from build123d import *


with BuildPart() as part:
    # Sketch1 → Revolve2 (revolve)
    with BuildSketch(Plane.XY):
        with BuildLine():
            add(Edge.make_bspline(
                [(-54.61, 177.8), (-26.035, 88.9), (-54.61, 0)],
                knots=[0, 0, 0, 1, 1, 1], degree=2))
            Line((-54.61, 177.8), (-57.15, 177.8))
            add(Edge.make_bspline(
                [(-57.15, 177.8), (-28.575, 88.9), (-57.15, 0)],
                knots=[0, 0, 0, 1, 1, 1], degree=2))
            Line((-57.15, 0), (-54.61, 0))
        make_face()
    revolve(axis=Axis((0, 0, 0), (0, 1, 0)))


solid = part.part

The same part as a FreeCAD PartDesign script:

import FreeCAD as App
import Part
import Sketcher
from FreeCAD import Vector

doc = App.newDocument("Part")
body = doc.addObject("PartDesign::Body", "Body")

sketch1 = doc.addObject("Sketcher::SketchObject", "Sketch")
body.addObject(sketch1)
sketch1.AttachmentSupport = (doc.XY_Plane, [""])
sketch1.MapMode = "FlatFace"
sketch1.addGeometry(Part.BSplineCurve([Vector(-54.61, 177.8, 0), Vector(-26.035, 88.9, 0), Vector(-54.61, 0, 0)], [3, 3], [0, 1], False, 2, [1, 1, 1], False), False)
sketch1.addGeometry(Part.LineSegment(Vector(-54.61, 177.8, 0), Vector(-57.15, 177.8, 0)), False)
sketch1.addGeometry(Part.BSplineCurve([Vector(-57.15, 177.8, 0), Vector(-28.575, 88.9, 0), Vector(-57.15, 0, 0)], [3, 3], [0, 1], False, 2, [1, 1, 1], False), False)
sketch1.addGeometry(Part.LineSegment(Vector(-57.15, 0, 0), Vector(-54.61, 0, 0)), False)
sketch1.addConstraint(Sketcher.Constraint("Block", 0))
sketch1.addConstraint(Sketcher.Constraint("Block", 2))
sketch1.addConstraint(Sketcher.Constraint("Coincident", 0, 1, 1, 1))
sketch1.addConstraint(Sketcher.Constraint("Coincident", 1, 2, 2, 1))
sketch1.addConstraint(Sketcher.Constraint("Coincident", 2, 2, 3, 1))
sketch1.addConstraint(Sketcher.Constraint("Coincident", 3, 2, 0, 2))
revolution = doc.addObject("PartDesign::Revolution", "Revolution")
body.addObject(revolution)
revolution.Profile = sketch1
revolution.ReferenceAxis = (sketch1, ["V_Axis"])
revolution.Angle = 360

doc.recompute()
